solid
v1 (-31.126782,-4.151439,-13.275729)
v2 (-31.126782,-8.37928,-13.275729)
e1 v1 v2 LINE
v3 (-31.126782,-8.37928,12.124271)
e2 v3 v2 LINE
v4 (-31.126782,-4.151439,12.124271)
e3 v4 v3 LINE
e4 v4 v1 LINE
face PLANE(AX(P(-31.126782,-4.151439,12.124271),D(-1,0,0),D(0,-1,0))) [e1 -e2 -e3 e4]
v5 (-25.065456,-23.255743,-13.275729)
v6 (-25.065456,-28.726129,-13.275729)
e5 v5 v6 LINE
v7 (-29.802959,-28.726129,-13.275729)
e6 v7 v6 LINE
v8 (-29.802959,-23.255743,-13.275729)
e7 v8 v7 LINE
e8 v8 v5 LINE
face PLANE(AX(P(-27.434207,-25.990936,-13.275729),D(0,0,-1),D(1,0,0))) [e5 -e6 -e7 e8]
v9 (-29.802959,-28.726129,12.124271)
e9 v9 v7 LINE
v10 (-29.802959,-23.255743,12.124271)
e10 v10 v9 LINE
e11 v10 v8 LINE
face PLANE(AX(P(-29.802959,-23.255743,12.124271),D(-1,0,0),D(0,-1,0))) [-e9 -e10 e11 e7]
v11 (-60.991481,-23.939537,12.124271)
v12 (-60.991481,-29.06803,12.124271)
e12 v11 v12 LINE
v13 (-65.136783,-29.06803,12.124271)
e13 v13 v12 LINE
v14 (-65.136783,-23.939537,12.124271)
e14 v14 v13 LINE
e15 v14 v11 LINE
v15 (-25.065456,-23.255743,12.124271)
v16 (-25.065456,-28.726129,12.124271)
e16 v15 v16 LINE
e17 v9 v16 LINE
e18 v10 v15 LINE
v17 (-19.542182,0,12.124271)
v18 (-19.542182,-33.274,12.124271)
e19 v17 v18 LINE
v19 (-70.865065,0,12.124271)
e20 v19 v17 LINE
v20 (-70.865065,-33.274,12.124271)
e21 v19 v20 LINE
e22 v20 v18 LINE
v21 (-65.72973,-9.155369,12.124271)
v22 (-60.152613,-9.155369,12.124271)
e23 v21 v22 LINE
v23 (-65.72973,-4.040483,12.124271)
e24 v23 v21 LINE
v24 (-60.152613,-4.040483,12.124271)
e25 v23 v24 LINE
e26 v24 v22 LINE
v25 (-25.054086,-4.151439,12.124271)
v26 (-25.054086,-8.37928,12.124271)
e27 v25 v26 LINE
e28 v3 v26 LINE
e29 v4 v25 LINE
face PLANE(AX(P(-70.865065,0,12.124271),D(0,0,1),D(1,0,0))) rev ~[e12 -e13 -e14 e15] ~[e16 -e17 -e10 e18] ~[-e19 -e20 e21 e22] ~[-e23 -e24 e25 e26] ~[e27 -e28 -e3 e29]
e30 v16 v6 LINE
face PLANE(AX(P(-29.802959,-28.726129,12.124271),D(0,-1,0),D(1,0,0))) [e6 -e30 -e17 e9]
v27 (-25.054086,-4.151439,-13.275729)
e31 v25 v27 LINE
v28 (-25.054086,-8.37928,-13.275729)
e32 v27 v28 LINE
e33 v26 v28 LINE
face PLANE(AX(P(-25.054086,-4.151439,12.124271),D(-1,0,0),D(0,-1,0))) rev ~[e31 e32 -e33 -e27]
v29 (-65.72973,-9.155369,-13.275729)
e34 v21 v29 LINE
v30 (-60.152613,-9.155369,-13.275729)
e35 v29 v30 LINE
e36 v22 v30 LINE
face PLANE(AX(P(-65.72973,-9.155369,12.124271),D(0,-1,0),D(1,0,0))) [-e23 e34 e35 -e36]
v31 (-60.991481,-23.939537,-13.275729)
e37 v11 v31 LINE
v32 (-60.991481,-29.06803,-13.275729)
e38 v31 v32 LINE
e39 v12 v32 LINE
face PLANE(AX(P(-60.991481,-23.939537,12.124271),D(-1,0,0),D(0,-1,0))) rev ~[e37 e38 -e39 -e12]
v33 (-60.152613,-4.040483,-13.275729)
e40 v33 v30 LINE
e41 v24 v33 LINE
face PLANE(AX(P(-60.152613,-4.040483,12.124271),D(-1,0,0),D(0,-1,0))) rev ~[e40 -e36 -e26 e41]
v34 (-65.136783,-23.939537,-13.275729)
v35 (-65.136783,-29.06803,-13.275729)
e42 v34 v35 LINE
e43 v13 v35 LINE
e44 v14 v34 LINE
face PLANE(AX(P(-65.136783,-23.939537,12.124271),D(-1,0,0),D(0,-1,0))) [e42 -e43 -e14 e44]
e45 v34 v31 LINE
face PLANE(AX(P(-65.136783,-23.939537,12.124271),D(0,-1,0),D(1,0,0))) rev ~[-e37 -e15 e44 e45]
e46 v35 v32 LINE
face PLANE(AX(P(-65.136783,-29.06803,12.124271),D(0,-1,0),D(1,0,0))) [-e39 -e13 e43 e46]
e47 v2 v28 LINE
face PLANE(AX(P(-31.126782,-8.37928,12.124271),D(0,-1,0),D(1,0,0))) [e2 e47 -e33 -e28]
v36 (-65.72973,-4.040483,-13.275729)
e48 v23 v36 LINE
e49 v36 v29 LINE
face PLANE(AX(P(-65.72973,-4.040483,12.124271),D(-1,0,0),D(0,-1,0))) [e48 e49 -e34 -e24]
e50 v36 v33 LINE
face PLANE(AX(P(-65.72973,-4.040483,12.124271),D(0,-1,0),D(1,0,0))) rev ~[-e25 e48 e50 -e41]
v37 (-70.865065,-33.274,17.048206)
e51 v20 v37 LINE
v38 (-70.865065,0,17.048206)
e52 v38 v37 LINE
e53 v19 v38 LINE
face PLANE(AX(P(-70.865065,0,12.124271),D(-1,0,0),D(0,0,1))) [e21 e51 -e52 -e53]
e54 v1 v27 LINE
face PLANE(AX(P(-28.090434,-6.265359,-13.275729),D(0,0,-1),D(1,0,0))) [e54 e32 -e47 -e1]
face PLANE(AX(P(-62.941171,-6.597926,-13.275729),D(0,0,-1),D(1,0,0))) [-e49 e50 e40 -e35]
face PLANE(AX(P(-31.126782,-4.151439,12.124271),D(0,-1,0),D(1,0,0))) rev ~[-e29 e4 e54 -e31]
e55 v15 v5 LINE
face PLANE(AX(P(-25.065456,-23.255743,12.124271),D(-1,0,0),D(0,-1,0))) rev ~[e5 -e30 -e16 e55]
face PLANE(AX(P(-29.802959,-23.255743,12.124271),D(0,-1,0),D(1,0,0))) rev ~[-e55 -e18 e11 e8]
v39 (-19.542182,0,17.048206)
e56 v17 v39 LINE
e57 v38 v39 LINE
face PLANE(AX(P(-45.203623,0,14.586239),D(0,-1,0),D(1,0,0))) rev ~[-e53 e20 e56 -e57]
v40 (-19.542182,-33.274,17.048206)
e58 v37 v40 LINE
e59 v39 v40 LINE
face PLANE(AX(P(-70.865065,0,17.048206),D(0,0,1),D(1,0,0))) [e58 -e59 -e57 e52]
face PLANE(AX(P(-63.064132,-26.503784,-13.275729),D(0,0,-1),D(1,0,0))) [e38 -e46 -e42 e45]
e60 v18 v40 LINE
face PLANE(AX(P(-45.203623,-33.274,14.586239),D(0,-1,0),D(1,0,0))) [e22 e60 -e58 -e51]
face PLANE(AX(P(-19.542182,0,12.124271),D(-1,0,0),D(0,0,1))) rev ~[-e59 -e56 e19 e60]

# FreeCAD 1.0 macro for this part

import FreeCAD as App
import Part
import Sketcher

V = App.Vector
Q = App.Units.Quantity


def add_polygon(sketch, points):
    """Adds a closed chain of lines whose ends are joined by coincident constraints."""
    first, n = sketch.GeometryCount, len(points)
    for a, b in zip(points, points[1:] + points[:1]):
        sketch.addGeometry(Part.LineSegment(App.Vector(*a, 0), App.Vector(*b, 0)), False)
    for i in range(n):
        sketch.addConstraint(Sketcher.Constraint("Coincident", first + i, 2, first + (i + 1) % n, 1))

doc = App.newDocument("Part")
body = doc.addObject("PartDesign::Body", "Body")

# Sketch on XZ plane
sketch1 = doc.addObject("Sketcher::SketchObject", "Sketch")
body.addObject(sketch1)
sketch1.AttachmentSupport = (doc.XZ_Plane, [""])
sketch1.MapMode = "FlatFace"
add_polygon(sketch1, [(-70.9, 17), (-70.9, 12.1), (-19.5, 12.1), (-19.5, 17)])  # lines 0-3
sketch1.addConstraint([
    Sketcher.Constraint("Vertical", 0),
    Sketcher.Constraint("Horizontal", 1),
    Sketcher.Constraint("Vertical", 2),
    Sketcher.Constraint("Horizontal", 3),
    Sketcher.Constraint("DistanceX", 1, 1, 1, 2, Q("51.322883 mm")),
    Sketcher.Constraint("DistanceY", 0, 2, 0, 1, Q("4.923935 mm")),
    Sketcher.Constraint("DistanceY", -1, 1, 0, 2, Q("12.124271 mm")),
    Sketcher.Constraint("DistanceX", 1, 2, -1, 1, Q("19.542182 mm")),
])
pad1 = doc.addObject("PartDesign::Pad", "Pad")
body.addObject(pad1)
pad1.Profile = sketch1
pad1.Length = Q("1.31 in")

# Sketch on XY plane
sketch2 = doc.addObject("Sketcher::SketchObject", "Sketch001")
body.addObject(sketch2)
sketch2.AttachmentSupport = (doc.XY_Plane, [""])
sketch2.MapMode = "FlatFace"
sketch2.AttachmentOffset = App.Placement(V(0, 0, 12.124271), App.Rotation())
add_polygon(sketch2, [(-65.1, -29.1), (-65.1, -23.9), (-61, -23.9), (-61, -29.1)])  # lines 0-3
sketch2.addConstraint([
    Sketcher.Constraint("Vertical", 0),
    Sketcher.Constraint("Horizontal", 1),
    Sketcher.Constraint("Vertical", 2),
    Sketcher.Constraint("Horizontal", 3),
    Sketcher.Constraint("DistanceX", 1, 1, 1, 2, Q("4.145302 mm")),
    Sketcher.Constraint("DistanceY", 0, 1, 0, 2, Q("5.128494 mm")),
    Sketcher.Constraint("DistanceX", 1, 2, -1, 1, Q("60.991481 mm")),
    Sketcher.Constraint("DistanceY", 2, 2, -1, 1, Q("29.06803 mm")),
])
pad2 = doc.addObject("PartDesign::Pad", "Pad001")
body.addObject(pad2)
pad2.Profile = sketch2
pad2.Length = Q("1 in")
pad2.Reversed = True

# Sketch on XY plane
sketch3 = doc.addObject("Sketcher::SketchObject", "Sketch002")
body.addObject(sketch3)
sketch3.AttachmentSupport = (doc.XY_Plane, [""])
sketch3.MapMode = "FlatFace"
sketch3.AttachmentOffset = App.Placement(V(0, 0, 12.124271), App.Rotation())
add_polygon(sketch3, [(-29.8, -28.7), (-29.8, -23.3), (-25.1, -23.3), (-25.1, -28.7)])  # lines 0-3
sketch3.addConstraint([
    Sketcher.Constraint("Vertical", 0),
    Sketcher.Constraint("Horizontal", 1),
    Sketcher.Constraint("Vertical", 2),
    Sketcher.Constraint("Horizontal", 3),
    Sketcher.Constraint("DistanceX", 1, 1, 1, 2, Q("4.737504 mm")),
    Sketcher.Constraint("DistanceY", 0, 1, 0, 2, Q("5.470386 mm")),
    Sketcher.Constraint("DistanceX", 0, 2, -1, 1, Q("29.802959 mm")),
    Sketcher.Constraint("DistanceY", 2, 2, -1, 1, Q("28.726129 mm")),
])
pad3 = doc.addObject("PartDesign::Pad", "Pad002")
body.addObject(pad3)
pad3.Profile = sketch3
pad3.Length = Q("1 in")
pad3.Reversed = True

# Sketch on XY plane
sketch4 = doc.addObject("Sketcher::SketchObject", "Sketch003")
body.addObject(sketch4)
sketch4.AttachmentSupport = (doc.XY_Plane, [""])
sketch4.MapMode = "FlatFace"
sketch4.AttachmentOffset = App.Placement(V(0, 0, 12.124271), App.Rotation())
add_polygon(sketch4, [(-66, -9), (-66, -4), (-60, -4), (-60, -9)])  # lines 0-3
sketch4.addConstraint([
    Sketcher.Constraint("Vertical", 0),
    Sketcher.Constraint("Horizontal", 1),
    Sketcher.Constraint("Vertical", 2),
    Sketcher.Constraint("Horizontal", 3),
    Sketcher.Constraint("DistanceX", 1, 1, 1, 2, Q("5.577117 mm")),
    Sketcher.Constraint("DistanceY", 0, 1, 0, 2, Q("5.114886 mm")),
    Sketcher.Constraint("DistanceX", 0, 2, -1, 1, Q("65.72973 mm")),
    Sketcher.Constraint("DistanceY", 2, 2, -1, 1, Q("9.155369 mm")),
])
pad4 = doc.addObject("PartDesign::Pad", "Pad003")
body.addObject(pad4)
pad4.Profile = sketch4
pad4.Length = Q("1 in")
pad4.Reversed = True

# Sketch on XY plane
sketch5 = doc.addObject("Sketcher::SketchObject", "Sketch004")
body.addObject(sketch5)
sketch5.AttachmentSupport = (doc.XY_Plane, [""])
sketch5.MapMode = "FlatFace"
sketch5.AttachmentOffset = App.Placement(V(0, 0, 12.124271), App.Rotation())
add_polygon(sketch5, [(-31.1, -8.4), (-31.1, -4.2), (-25.1, -4.2), (-25.1, -8.4)])  # lines 0-3
sketch5.addConstraint([
    Sketcher.Constraint("Vertical", 0),
    Sketcher.Constraint("Horizontal", 1),
    Sketcher.Constraint("Vertical", 2),
    Sketcher.Constraint("Horizontal", 3),
    Sketcher.Constraint("DistanceY", 0, 1, 0, 2, Q("4.227841 mm")),
    Sketcher.Constraint("DistanceX", 1, 1, 1, 2, Q("6.072696 mm")),
    Sketcher.Constraint("DistanceY", 0, 2, -1, 1, Q("4.151439 mm")),
    Sketcher.Constraint("DistanceX", 0, 2, -1, 1, Q("31.126782 mm")),
])
pad5 = doc.addObject("PartDesign::Pad", "Pad004")
body.addObject(pad5)
pad5.Profile = sketch5
pad5.Length = Q("1 in")
pad5.Reversed = True

doc.recompute()
